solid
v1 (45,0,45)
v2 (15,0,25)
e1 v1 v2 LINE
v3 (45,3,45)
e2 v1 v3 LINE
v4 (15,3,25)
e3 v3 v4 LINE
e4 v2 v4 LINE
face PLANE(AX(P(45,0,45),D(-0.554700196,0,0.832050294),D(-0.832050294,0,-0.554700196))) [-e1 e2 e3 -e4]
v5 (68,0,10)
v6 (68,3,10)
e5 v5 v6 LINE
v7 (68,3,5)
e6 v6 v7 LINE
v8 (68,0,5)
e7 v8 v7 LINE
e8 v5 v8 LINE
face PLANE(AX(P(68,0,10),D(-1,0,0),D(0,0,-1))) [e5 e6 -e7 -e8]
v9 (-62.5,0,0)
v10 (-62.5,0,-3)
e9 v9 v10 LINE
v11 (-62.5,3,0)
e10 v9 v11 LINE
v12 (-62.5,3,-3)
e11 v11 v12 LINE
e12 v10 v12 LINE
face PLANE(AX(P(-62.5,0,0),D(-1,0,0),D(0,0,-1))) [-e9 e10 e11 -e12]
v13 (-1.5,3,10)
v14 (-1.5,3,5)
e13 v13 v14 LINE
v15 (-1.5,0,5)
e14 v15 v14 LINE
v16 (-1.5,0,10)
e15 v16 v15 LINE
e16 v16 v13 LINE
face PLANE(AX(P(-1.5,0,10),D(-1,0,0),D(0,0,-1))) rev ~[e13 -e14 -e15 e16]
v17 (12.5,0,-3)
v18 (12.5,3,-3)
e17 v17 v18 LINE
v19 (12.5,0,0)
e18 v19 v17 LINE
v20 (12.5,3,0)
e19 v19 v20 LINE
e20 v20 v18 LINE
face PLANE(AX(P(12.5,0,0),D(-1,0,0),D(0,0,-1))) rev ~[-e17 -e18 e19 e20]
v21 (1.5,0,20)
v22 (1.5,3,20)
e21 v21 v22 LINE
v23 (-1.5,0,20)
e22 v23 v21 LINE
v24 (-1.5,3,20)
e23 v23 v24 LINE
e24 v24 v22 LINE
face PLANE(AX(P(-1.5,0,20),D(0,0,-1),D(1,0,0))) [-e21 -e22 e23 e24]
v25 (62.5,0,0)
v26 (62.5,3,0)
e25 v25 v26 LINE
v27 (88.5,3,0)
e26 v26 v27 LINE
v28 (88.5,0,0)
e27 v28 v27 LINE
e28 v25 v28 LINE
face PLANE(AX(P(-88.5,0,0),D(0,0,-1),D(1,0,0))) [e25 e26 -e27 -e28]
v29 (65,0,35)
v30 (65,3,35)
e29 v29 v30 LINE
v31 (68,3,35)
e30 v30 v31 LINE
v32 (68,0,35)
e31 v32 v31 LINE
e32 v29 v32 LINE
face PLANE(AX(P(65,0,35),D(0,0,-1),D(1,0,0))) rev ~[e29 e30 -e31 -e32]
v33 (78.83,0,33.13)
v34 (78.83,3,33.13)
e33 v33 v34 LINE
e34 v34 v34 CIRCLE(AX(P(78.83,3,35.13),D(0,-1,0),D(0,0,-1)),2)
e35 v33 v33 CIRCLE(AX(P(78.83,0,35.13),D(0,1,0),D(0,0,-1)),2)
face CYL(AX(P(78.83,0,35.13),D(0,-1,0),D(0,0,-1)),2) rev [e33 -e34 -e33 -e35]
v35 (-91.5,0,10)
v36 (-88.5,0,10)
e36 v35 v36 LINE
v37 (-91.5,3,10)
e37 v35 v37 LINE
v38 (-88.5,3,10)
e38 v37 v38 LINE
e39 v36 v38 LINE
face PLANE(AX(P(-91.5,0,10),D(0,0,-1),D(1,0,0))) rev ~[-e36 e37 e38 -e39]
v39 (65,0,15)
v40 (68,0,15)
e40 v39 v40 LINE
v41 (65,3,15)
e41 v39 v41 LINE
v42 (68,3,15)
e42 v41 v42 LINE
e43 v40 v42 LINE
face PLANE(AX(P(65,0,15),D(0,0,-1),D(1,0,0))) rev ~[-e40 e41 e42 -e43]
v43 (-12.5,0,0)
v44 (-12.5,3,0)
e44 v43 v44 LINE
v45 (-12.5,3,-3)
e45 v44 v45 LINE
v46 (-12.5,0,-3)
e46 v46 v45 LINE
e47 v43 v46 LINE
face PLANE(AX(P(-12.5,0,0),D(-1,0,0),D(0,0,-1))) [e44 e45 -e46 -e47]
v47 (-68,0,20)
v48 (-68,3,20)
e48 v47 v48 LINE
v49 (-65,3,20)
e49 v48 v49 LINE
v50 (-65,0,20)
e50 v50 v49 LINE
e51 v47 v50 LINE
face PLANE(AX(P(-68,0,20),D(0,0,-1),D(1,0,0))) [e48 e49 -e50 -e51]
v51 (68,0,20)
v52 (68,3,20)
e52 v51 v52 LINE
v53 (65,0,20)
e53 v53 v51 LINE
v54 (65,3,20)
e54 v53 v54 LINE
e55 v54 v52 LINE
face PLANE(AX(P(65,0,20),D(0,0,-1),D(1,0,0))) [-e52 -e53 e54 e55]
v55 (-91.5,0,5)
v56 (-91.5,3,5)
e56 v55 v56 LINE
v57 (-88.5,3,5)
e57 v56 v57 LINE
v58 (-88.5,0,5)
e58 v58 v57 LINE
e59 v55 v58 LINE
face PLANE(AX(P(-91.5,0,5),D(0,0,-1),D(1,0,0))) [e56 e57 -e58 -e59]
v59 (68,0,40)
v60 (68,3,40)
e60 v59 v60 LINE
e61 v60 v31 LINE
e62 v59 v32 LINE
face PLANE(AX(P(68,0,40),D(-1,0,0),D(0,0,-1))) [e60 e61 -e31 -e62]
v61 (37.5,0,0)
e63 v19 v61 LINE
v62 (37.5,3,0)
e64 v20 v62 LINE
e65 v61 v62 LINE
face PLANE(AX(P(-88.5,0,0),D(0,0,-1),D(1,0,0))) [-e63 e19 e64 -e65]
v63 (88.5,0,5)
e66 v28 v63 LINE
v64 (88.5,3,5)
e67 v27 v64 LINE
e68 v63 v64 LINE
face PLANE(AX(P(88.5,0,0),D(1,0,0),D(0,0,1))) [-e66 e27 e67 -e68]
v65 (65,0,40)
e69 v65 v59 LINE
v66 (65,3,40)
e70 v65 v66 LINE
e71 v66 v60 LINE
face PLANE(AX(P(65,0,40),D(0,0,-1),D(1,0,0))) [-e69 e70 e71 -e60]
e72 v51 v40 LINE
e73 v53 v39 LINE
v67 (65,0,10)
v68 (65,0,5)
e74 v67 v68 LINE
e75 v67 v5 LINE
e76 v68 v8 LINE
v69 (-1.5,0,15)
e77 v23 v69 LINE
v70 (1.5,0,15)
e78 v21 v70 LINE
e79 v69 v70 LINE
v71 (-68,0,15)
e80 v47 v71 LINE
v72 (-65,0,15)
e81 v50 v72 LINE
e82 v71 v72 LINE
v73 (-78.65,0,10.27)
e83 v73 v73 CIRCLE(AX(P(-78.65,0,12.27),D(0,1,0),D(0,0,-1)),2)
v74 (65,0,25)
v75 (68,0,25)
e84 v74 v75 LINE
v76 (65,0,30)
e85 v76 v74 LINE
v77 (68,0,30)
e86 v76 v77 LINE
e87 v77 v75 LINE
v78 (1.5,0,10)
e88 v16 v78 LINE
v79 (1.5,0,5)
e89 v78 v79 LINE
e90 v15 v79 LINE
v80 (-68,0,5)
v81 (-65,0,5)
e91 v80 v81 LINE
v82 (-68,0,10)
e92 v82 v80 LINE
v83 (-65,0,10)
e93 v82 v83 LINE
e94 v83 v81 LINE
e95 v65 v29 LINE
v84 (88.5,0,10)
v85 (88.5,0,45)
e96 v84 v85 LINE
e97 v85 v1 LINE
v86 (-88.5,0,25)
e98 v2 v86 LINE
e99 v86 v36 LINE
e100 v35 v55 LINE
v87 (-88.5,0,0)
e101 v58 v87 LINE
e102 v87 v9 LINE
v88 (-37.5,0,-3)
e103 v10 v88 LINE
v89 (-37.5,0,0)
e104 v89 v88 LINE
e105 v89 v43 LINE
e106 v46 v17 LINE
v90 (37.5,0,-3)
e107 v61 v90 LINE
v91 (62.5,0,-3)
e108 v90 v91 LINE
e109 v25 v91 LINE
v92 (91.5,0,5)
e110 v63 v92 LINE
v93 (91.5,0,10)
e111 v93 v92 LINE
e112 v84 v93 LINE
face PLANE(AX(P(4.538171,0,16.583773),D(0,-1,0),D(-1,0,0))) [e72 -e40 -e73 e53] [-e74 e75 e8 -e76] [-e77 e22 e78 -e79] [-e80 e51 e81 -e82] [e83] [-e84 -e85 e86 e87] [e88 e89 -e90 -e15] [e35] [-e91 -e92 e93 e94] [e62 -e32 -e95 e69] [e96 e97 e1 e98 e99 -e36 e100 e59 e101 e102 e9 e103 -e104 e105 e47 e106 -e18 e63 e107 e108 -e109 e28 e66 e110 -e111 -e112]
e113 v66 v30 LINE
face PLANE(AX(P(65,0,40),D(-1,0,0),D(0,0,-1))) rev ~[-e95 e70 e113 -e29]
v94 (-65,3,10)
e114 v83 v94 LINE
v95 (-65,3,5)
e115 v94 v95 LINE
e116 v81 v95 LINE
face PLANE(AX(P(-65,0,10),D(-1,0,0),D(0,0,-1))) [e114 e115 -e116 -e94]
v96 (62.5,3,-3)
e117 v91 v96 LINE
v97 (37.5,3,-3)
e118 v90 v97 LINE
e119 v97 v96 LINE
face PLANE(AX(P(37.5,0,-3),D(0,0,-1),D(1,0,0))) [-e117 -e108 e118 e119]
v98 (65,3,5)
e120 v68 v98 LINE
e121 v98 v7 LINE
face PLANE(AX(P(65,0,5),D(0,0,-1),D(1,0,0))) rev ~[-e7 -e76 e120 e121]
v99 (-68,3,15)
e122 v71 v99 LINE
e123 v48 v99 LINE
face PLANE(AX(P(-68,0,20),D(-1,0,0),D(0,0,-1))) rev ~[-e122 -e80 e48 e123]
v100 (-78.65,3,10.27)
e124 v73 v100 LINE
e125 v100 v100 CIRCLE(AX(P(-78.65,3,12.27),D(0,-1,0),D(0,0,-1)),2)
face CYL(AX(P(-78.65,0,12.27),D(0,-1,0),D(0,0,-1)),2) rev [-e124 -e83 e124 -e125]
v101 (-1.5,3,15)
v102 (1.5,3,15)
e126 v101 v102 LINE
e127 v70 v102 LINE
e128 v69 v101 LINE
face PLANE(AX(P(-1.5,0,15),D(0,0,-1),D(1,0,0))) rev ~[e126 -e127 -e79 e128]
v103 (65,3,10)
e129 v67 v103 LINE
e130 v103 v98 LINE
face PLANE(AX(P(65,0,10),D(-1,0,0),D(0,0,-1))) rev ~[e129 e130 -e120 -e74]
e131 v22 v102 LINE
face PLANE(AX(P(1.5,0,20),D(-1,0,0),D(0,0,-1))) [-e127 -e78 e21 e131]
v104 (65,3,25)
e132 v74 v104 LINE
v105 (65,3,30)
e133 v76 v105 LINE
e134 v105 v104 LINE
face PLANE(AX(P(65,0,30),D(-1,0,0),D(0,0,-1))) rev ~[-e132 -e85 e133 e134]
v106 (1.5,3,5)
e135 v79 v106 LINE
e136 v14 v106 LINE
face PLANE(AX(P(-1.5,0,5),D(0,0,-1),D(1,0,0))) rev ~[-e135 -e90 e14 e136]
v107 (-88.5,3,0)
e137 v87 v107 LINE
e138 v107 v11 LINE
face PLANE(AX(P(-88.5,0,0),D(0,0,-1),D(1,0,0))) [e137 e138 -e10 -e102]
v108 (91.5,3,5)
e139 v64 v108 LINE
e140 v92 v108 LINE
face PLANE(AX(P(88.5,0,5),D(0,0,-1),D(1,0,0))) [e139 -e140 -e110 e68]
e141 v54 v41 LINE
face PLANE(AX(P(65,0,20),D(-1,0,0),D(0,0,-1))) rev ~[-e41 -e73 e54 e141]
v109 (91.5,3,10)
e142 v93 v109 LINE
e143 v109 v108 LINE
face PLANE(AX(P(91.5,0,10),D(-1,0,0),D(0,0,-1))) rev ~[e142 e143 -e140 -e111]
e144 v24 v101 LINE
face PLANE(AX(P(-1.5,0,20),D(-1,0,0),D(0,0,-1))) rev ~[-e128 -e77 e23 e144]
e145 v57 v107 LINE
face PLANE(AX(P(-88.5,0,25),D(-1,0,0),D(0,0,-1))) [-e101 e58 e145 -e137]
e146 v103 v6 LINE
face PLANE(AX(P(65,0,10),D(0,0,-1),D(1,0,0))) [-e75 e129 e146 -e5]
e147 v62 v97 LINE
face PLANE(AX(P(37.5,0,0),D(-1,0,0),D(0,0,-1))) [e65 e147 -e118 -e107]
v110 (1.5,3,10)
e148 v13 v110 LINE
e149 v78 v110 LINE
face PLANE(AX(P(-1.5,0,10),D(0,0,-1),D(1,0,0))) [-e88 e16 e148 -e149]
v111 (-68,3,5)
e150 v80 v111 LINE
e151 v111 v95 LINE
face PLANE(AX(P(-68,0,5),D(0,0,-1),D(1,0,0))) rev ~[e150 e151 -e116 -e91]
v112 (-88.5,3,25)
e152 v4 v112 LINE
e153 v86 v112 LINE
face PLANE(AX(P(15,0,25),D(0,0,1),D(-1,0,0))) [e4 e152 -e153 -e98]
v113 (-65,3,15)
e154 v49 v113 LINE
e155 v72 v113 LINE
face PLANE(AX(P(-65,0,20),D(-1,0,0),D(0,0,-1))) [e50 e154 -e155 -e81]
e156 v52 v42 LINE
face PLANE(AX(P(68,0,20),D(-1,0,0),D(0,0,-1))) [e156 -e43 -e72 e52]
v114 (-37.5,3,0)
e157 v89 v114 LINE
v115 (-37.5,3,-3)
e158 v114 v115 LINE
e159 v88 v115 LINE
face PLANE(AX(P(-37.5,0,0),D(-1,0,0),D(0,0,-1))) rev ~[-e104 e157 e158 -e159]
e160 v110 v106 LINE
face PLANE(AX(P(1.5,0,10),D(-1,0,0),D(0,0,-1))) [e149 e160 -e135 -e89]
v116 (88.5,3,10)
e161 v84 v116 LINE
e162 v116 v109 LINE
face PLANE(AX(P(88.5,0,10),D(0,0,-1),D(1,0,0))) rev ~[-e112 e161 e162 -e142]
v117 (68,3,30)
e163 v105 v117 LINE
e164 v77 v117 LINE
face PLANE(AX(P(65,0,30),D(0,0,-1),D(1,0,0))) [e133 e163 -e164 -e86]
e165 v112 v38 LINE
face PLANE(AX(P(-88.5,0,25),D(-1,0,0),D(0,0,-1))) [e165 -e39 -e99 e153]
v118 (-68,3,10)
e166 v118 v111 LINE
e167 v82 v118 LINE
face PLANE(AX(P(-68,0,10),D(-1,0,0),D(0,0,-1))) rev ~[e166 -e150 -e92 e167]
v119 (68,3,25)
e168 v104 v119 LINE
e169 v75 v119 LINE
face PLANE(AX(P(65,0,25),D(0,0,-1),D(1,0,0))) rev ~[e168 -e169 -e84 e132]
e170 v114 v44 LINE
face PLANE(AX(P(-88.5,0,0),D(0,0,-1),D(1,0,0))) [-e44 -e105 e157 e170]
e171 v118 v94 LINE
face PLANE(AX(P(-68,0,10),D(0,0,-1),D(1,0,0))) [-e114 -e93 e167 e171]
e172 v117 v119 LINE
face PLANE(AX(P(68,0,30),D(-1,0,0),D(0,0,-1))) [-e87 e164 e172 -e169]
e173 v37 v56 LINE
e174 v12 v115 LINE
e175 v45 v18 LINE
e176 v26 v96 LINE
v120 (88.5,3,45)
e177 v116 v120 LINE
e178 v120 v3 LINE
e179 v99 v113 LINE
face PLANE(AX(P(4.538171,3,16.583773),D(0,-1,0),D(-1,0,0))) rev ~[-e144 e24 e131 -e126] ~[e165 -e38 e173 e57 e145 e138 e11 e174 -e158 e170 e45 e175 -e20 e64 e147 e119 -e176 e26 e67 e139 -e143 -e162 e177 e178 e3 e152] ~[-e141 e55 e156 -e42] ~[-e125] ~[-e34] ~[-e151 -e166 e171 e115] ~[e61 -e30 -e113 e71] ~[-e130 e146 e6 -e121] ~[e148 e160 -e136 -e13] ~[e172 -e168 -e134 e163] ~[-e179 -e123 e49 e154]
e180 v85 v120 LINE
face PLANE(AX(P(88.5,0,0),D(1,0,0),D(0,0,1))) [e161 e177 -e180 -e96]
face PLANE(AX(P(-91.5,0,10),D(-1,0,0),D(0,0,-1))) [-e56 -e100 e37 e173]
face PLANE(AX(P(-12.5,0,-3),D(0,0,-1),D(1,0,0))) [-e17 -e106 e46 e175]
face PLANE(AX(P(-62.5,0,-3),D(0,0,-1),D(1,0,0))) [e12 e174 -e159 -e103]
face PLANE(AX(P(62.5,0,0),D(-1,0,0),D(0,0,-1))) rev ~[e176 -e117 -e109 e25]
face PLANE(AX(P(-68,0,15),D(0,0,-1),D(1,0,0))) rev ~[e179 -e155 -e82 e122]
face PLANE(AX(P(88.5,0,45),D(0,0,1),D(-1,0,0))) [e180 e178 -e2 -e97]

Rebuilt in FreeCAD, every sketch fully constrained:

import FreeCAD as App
import Part
import Sketcher
from FreeCAD import Vector


def add_polygon(sketch, points):
    """Adds a closed chain of lines whose ends are joined by coincident constraints."""
    first, n = sketch.GeometryCount, len(points)
    for a, b in zip(points, points[1:] + points[:1]):
        sketch.addGeometry(Part.LineSegment(App.Vector(*a, 0), App.Vector(*b, 0)), False)
    for i in range(n):
        sketch.addConstraint(Sketcher.Constraint("Coincident", first + i, 2, first + (i + 1) % n, 1))

doc = App.newDocument("Part")
body = doc.addObject("PartDesign::Body", "Body")

sketch1 = body.newObject("Sketcher::SketchObject", "Sketch")
sketch1.AttachmentSupport = (doc.getObject("XZ_Plane"), [""])
sketch1.MapMode = "FlatFace"
add_polygon(sketch1, [(88, 0), (-88, 0), (-88, 25), (15, 25), (45, 45), (88, 45)])
sketch1.addConstraint(Sketcher.Constraint("Horizontal", 0))
sketch1.addConstraint(Sketcher.Constraint("Vertical", 1))
sketch1.addConstraint(Sketcher.Constraint("Horizontal", 2))
sketch1.addConstraint(Sketcher.Constraint("Horizontal", 4))
sketch1.addConstraint(Sketcher.Constraint("Vertical", 5))
sketch1.addConstraint(Sketcher.Constraint("Symmetric", 0, 2, 5, 2, -1, 1))
sketch1.addConstraint(Sketcher.Constraint("DistanceX", 0, 2, 0, 1, 177.0))
sketch1.addConstraint(Sketcher.Constraint("DistanceY", 1, 1, 1, 2, 25.0))
sketch1.addConstraint(Sketcher.Constraint("DistanceY", 5, 2, 5, 1, 45.0))
sketch1.addConstraint(Sketcher.Constraint("DistanceX", 2, 1, 2, 2, 103.5))
sketch1.addConstraint(Sketcher.Constraint("DistanceX", 4, 1, 4, 2, 43.5))
pad1 = body.newObject("PartDesign::Pad", "Pad")
pad1.Profile = sketch1
pad1.Length = 3
pad1.Reversed = True

sketch2 = body.newObject("Sketcher::SketchObject", "Sketch001")
sketch2.AttachmentSupport = (doc.getObject("XZ_Plane"), [""])
sketch2.MapMode = "FlatFace"
add_polygon(sketch2, [(-1.5, 5), (-1.5, 10), (1.5, 10), (1.5, 5)])
add_polygon(sketch2, [(-1.5, 15), (-1.5, 20), (1.5, 20), (1.5, 15)])
add_polygon(sketch2, [(-68, 5), (-68, 10), (-65, 10), (-65, 5)])
add_polygon(sketch2, [(-68, 15), (-68, 20), (-65, 20), (-65, 15)])
add_polygon(sketch2, [(65, 5), (65, 10), (68, 10), (68, 5)])
add_polygon(sketch2, [(65, 15), (65, 20), (68, 20), (68, 15)])
add_polygon(sketch2, [(65, 25), (65, 30), (68, 30), (68, 25)])
add_polygon(sketch2, [(65, 35), (65, 40), (68, 40), (68, 35)])
sketch2.addConstraint(Sketcher.Constraint("Vertical", 0))
sketch2.addConstraint(Sketcher.Constraint("Horizontal", 1))
sketch2.addConstraint(Sketcher.Constraint("Vertical", 2))
sketch2.addConstraint(Sketcher.Constraint("Horizontal", 3))
sketch2.addConstraint(Sketcher.Constraint("Vertical", 4))
sketch2.addConstraint(Sketcher.Constraint("Horizontal", 5))
sketch2.addConstraint(Sketcher.Constraint("Vertical", 6))
sketch2.addConstraint(Sketcher.Constraint("Horizontal", 7))
sketch2.addConstraint(Sketcher.Constraint("Vertical", 8))
sketch2.addConstraint(Sketcher.Constraint("Horizontal", 9))
sketch2.addConstraint(Sketcher.Constraint("Vertical", 10))
sketch2.addConstraint(Sketcher.Constraint("Horizontal", 11))
sketch2.addConstraint(Sketcher.Constraint("Vertical", 12))
sketch2.addConstraint(Sketcher.Constraint("Horizontal", 13))
sketch2.addConstraint(Sketcher.Constraint("Vertical", 14))
sketch2.addConstraint(Sketcher.Constraint("Horizontal", 15))
sketch2.addConstraint(Sketcher.Constraint("Vertical", 16))
sketch2.addConstraint(Sketcher.Constraint("Horizontal", 17))
sketch2.addConstraint(Sketcher.Constraint("Vertical", 18))
sketch2.addConstraint(Sketcher.Constraint("Horizontal", 19))
sketch2.addConstraint(Sketcher.Constraint("Vertical", 20))
sketch2.addConstraint(Sketcher.Constraint("Horizontal", 21))
sketch2.addConstraint(Sketcher.Constraint("Vertical", 22))
sketch2.addConstraint(Sketcher.Constraint("Horizontal", 23))
sketch2.addConstraint(Sketcher.Constraint("Vertical", 24))
sketch2.addConstraint(Sketcher.Constraint("Horizontal", 25))
sketch2.addConstraint(Sketcher.Constraint("Vertical", 26))
sketch2.addConstraint(Sketcher.Constraint("Horizontal", 27))
sketch2.addConstraint(Sketcher.Constraint("Vertical", 28))
sketch2.addConstraint(Sketcher.Constraint("Horizontal", 29))
sketch2.addConstraint(Sketcher.Constraint("Vertical", 30))
sketch2.addConstraint(Sketcher.Constraint("Horizontal", 31))
sketch2.addConstraint(Sketcher.Constraint("Symmetric", 9, 2, 16, 2, -2))
sketch2.addConstraint(Sketcher.Constraint("Symmetric", 11, 2, 18, 2, -2))
sketch2.addConstraint(Sketcher.Constraint("Symmetric", 13, 2, 20, 2, -2))
sketch2.addConstraint(Sketcher.Constraint("Symmetric", 15, 2, 22, 2, -2))
sketch2.addConstraint(Sketcher.Constraint("Horizontal", 1, 2, 8, 2))
sketch2.addConstraint(Sketcher.Constraint("Horizontal", 3, 2, 10, 2))
sketch2.addConstraint(Sketcher.Constraint("Horizontal", 5, 2, 12, 2))
sketch2.addConstraint(Sketcher.Constraint("Horizontal", 7, 2, 14, 2))
sketch2.addConstraint(Sketcher.Constraint("Vertical", 3, 2, 4, 2))
sketch2.addConstraint(Sketcher.Constraint("Vertical", 2, 2, 5, 2))
sketch2.addConstraint(Sketcher.Constraint("Vertical", 11, 2, 12, 2))
sketch2.addConstraint(Sketcher.Constraint("Vertical", 10, 2, 13, 2))
sketch2.addConstraint(Sketcher.Constraint("Vertical", 23, 2, 24, 2))
sketch2.addConstraint(Sketcher.Constraint("Vertical", 22, 2, 25, 2))
sketch2.addConstraint(Sketcher.Constraint("Vertical", 27, 2, 28, 2))
sketch2.addConstraint(Sketcher.Constraint("Vertical", 26, 2, 29, 2))
sketch2.addConstraint(Sketcher.Constraint("Equal", 7, 9))
sketch2.addConstraint(Sketcher.Constraint("Equal", 2, 4))
sketch2.addConstraint(Sketcher.Constraint("Equal", 22, 24))
sketch2.addConstraint(Sketcher.Constraint("Equal", 26, 28))
sketch2.addConstraint(Sketcher.Constraint("DistanceX", 1, 1, 1, 2, 3.0))
sketch2.addConstraint(Sketcher.Constraint("DistanceY", 0, 1, 0, 2, 5.0))
sketch2.addConstraint(Sketcher.Constraint("DistanceY", -1, 1, 0, 2, 10.0))
sketch2.addConstraint(Sketcher.Constraint("DistanceY", -1, 1, 4, 2, 20.0))
sketch2.addConstraint(Sketcher.Constraint("DistanceX", 8, 2, -1, 1, 68.0))
sketch2.addConstraint(Sketcher.Constraint("DistanceY", -1, 1, 24, 2, 30.0))
sketch2.addConstraint(Sketcher.Constraint("DistanceY", -1, 1, 28, 2, 40.0))
sketch2.addConstraint(Sketcher.Constraint("DistanceX", 0, 2, -1, 1, 1.5))
pocket1 = body.newObject("PartDesign::Pocket", "Pocket")
pocket1.Profile = sketch2
pocket1.Type = "ThroughAll"

sketch3 = body.newObject("Sketcher::SketchObject", "Sketch002")
sketch3.AttachmentSupport = (doc.getObject("XZ_Plane"), [""])
sketch3.MapMode = "FlatFace"
add_polygon(sketch3, [(-62.5, -3), (-62.5, 0), (-37.5, 0), (-37.5, -3)])
add_polygon(sketch3, [(-12.5, -3), (-12.5, 0), (12.5, 0), (12.5, -3)])
add_polygon(sketch3, [(37.5, -3), (37.5, 0), (62.5, 0), (62.5, -3)])
add_polygon(sketch3, [(88.5, 5), (88.5, 10), (91.5, 10), (91.5, 5)])
add_polygon(sketch3, [(-91.5, 5), (-91.5, 10), (-88.5, 10), (-88.5, 5)])
sketch3.addConstraint(Sketcher.Constraint("Vertical", 0))
sketch3.addConstraint(Sketcher.Constraint("Horizontal", 1))
sketch3.addConstraint(Sketcher.Constraint("Vertical", 2))
sketch3.addConstraint(Sketcher.Constraint("Horizontal", 3))
sketch3.addConstraint(Sketcher.Constraint("Vertical", 4))
sketch3.addConstraint(Sketcher.Constraint("Horizontal", 5))
sketch3.addConstraint(Sketcher.Constraint("Vertical", 6))
sketch3.addConstraint(Sketcher.Constraint("Horizontal", 7))
sketch3.addConstraint(Sketcher.Constraint("Vertical", 8))
sketch3.addConstraint(Sketcher.Constraint("Horizontal", 9))
sketch3.addConstraint(Sketcher.Constraint("Vertical", 10))
sketch3.addConstraint(Sketcher.Constraint("Horizontal", 11))
sketch3.addConstraint(Sketcher.Constraint("Vertical", 12))
sketch3.addConstraint(Sketcher.Constraint("Horizontal", 13))
sketch3.addConstraint(Sketcher.Constraint("Vertical", 14))
sketch3.addConstraint(Sketcher.Constraint("Horizontal", 15))
sketch3.addConstraint(Sketcher.Constraint("Vertical", 16))
sketch3.addConstraint(Sketcher.Constraint("Horizontal", 17))
sketch3.addConstraint(Sketcher.Constraint("Vertical", 18))
sketch3.addConstraint(Sketcher.Constraint("Horizontal", 19))
sketch3.addConstraint(Sketcher.Constraint("Symmetric", 4, 2, 5, 2, -1, 1))
sketch3.addConstraint(Sketcher.Constraint("Symmetric", 1, 2, 8, 2, -1, 1))
sketch3.addConstraint(Sketcher.Constraint("Symmetric", 0, 2, 9, 2, -2))
sketch3.addConstraint(Sketcher.Constraint("Symmetric", 13, 2, 16, 2, -2))
sketch3.addConstraint(Sketcher.Constraint("Symmetric", 15, 2, 18, 2, -2))
sketch3.addConstraint(Sketcher.Constraint("Horizontal", 3, 2, 6, 2))
sketch3.addConstraint(Sketcher.Constraint("Horizontal", 7, 2, 10, 2))
sketch3.addConstraint(Sketcher.Constraint("Equal", 3, 5))
sketch3.addConstraint(Sketcher.Constraint("Equal", 19, 0))
sketch3.addConstraint(Sketcher.Constraint("DistanceX", 1, 1, 1, 2, 25.0))
sketch3.addConstraint(Sketcher.Constraint("DistanceX", 13, 1, 13, 2, 3.0))
sketch3.addConstraint(Sketcher.Constraint("DistanceY", 12, 1, 12, 2, 5.0))
sketch3.addConstraint(Sketcher.Constraint("DistanceY", -1, 1, 12, 2, 10.0))
sketch3.addConstraint(Sketcher.Constraint("DistanceX", 1, 2, 4, 2, 25.0))
sketch3.addConstraint(Sketcher.Constraint("DistanceX", 9, 2, 12, 2, 26.0))
pad2 = body.newObject("PartDesign::Pad", "Pad001")
pad2.Profile = sketch3
pad2.Length = 3
pad2.Reversed = True

sketch4 = body.newObject("Sketcher::SketchObject", "Sketch003")
sketch4.AttachmentSupport = (doc.getObject("XZ_Plane"), [""])
sketch4.MapMode = "FlatFace"
sketch4.addGeometry(Part.Circle(Vector(-78.7, 12.3, 0), Vector(0, 0, 1), 2), False)
sketch4.addGeometry(Part.Circle(Vector(78.8, 35.1, 0), Vector(0, 0, 1), 2), False)
sketch4.addConstraint(Sketcher.Constraint("Equal", 0, 1))
sketch4.addConstraint(Sketcher.Constraint("Diameter", 0, 4.0))
sketch4.addConstraint(Sketcher.Constraint("DistanceX", 0, 3, -1, 1, 78.65))
sketch4.addConstraint(Sketcher.Constraint("DistanceY", -1, 1, 0, 3, 12.27))
sketch4.addConstraint(Sketcher.Constraint("DistanceX", -1, 1, 1, 3, 78.83))
sketch4.addConstraint(Sketcher.Constraint("DistanceY", -1, 1, 1, 3, 35.13))
pocket2 = body.newObject("PartDesign::Pocket", "Pocket001")
pocket2.Profile = sketch4
pocket2.Type = "ThroughAll"

doc.recompute()
